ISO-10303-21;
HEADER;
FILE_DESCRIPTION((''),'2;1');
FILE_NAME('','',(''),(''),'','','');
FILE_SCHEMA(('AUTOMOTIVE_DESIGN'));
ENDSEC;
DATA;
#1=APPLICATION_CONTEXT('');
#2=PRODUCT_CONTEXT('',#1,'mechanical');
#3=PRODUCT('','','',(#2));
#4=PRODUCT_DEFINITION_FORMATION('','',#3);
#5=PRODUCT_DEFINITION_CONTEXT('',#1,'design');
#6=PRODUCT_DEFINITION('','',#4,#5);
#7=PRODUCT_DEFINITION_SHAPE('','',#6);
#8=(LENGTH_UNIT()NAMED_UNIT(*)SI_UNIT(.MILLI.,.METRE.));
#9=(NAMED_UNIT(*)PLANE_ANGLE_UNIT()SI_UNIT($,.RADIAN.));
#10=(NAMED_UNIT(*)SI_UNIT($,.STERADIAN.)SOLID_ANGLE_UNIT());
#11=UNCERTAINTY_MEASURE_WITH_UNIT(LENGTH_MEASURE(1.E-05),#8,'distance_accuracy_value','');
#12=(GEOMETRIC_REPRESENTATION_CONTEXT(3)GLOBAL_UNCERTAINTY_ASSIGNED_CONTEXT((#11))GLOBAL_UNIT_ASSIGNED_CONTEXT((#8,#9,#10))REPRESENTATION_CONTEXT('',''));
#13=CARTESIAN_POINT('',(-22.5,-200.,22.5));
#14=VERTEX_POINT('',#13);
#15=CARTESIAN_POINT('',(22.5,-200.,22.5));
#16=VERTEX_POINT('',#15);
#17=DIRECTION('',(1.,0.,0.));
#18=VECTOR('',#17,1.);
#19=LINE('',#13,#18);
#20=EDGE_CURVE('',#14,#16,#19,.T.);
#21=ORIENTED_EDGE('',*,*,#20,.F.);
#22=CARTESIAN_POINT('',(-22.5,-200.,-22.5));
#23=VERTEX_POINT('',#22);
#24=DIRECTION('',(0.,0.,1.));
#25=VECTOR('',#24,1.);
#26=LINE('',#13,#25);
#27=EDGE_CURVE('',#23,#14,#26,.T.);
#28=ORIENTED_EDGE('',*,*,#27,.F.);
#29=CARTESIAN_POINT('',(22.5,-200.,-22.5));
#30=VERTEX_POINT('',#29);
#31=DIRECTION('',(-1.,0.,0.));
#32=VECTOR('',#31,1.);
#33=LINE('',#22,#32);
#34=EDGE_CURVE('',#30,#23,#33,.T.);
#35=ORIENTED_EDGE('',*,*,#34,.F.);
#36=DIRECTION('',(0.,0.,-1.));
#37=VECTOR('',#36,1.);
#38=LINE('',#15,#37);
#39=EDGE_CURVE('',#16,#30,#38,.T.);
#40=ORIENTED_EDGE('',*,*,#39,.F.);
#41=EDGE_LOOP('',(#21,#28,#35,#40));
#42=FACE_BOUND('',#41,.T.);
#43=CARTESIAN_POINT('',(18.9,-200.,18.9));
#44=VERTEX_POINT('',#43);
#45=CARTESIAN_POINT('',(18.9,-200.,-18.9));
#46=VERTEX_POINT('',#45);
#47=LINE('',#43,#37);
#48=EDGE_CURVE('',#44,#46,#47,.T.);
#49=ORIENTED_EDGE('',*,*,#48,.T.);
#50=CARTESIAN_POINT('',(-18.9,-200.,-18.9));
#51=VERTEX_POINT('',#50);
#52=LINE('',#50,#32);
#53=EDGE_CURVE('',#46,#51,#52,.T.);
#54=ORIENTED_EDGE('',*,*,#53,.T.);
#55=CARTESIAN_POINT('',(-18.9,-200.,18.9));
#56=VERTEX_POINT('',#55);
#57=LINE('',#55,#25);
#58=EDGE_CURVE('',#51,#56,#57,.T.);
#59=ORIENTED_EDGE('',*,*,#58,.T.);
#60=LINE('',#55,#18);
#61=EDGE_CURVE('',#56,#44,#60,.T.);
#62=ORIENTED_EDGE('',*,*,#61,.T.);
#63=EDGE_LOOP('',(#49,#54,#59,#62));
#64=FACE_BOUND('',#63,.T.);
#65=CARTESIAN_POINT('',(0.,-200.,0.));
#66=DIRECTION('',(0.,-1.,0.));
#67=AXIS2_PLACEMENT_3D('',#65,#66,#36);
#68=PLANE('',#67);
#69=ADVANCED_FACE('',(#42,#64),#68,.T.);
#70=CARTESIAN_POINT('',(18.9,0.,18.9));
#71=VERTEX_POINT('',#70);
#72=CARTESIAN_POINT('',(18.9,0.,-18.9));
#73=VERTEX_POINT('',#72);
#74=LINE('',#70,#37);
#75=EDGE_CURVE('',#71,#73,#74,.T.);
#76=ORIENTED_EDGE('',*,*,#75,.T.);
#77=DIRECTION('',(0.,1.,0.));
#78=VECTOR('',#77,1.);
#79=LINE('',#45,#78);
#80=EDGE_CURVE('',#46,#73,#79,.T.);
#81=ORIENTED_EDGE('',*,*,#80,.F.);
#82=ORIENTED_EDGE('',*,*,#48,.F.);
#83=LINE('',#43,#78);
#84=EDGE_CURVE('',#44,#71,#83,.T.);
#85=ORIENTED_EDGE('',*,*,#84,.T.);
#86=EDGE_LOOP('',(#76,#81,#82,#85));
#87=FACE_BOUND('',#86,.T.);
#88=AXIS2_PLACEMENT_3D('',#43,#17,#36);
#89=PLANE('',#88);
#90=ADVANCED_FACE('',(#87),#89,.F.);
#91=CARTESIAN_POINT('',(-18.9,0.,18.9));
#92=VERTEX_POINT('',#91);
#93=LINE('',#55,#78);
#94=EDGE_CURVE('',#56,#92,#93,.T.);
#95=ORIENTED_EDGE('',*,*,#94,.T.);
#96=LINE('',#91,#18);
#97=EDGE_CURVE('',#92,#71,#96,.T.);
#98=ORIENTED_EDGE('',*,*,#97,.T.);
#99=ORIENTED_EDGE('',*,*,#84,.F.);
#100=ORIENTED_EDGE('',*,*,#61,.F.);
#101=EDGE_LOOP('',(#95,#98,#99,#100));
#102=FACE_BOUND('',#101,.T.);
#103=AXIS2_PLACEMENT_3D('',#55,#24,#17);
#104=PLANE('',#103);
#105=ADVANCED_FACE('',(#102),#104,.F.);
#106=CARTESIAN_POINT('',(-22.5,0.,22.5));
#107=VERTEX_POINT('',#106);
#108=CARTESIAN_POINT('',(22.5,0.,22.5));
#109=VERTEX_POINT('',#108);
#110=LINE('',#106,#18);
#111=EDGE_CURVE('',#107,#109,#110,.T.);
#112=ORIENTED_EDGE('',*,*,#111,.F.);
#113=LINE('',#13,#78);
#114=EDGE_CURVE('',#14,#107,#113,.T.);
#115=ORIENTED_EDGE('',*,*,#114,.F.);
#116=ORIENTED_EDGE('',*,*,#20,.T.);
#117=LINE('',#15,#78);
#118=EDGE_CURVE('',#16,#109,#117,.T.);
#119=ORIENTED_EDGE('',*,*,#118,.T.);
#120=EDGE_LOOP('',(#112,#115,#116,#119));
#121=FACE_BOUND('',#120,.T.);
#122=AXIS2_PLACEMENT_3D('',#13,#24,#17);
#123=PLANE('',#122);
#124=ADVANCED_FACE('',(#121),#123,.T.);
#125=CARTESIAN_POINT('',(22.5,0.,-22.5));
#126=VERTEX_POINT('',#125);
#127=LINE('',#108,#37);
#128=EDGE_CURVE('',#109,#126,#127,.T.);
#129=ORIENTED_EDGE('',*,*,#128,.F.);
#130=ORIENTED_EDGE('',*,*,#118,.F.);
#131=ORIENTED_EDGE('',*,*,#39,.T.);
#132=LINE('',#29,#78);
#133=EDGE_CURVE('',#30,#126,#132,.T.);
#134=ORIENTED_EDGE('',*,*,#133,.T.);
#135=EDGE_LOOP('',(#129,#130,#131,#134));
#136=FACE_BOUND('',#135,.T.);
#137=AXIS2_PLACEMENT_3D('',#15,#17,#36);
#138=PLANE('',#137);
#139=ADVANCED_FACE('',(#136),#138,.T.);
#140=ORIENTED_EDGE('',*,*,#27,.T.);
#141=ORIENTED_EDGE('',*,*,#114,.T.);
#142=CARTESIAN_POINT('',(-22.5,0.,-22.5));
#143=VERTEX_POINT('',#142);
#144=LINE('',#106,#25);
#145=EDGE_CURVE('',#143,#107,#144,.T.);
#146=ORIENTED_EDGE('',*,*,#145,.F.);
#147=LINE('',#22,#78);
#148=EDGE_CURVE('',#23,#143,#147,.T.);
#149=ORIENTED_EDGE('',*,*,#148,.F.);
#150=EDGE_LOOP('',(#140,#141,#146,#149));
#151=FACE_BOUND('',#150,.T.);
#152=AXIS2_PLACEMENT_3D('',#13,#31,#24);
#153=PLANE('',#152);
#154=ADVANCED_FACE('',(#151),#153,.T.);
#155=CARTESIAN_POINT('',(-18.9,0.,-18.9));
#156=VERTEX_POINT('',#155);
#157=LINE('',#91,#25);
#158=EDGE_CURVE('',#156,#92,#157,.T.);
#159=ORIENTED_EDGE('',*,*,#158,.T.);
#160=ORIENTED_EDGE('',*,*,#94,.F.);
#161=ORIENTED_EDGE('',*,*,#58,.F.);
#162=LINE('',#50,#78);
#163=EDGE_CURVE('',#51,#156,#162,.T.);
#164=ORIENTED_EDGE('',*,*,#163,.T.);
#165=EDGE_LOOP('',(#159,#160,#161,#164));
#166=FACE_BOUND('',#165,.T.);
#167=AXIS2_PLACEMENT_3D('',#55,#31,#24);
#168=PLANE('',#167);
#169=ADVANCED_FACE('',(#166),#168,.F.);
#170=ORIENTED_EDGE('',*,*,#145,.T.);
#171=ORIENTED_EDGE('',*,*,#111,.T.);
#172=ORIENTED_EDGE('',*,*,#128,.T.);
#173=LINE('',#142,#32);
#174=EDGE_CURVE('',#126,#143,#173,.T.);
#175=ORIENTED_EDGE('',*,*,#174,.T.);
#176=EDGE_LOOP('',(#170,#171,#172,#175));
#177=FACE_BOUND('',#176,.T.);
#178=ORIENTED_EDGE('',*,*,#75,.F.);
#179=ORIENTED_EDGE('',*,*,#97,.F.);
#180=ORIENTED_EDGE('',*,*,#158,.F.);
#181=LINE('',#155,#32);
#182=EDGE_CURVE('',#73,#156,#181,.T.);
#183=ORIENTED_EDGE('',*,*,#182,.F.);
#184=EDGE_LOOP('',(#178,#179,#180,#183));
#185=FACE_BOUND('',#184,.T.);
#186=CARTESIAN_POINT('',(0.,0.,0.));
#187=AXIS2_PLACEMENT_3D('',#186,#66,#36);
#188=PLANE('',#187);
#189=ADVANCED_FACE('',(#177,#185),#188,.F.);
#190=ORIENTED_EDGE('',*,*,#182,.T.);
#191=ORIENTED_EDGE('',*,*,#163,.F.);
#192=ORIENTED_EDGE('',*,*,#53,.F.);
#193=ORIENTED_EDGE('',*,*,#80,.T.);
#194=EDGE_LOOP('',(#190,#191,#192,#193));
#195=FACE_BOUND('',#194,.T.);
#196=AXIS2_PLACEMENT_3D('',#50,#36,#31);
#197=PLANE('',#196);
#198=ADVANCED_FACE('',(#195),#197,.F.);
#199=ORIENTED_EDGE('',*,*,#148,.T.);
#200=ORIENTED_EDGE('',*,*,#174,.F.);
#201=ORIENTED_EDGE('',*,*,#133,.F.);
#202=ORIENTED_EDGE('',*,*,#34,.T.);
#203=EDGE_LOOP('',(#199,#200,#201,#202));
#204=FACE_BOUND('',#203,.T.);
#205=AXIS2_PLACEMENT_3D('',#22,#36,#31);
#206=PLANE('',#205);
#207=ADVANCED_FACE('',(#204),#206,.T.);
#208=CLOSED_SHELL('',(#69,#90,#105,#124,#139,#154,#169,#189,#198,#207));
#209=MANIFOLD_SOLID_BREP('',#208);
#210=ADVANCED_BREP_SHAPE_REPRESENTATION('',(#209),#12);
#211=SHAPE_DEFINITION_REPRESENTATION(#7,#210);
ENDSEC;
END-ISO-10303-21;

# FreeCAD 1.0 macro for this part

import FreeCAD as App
import Part
import Sketcher
from FreeCAD import Vector
Q = App.Units.Quantity

doc = App.newDocument("Part")
body = doc.addObject("PartDesign::Body", "Body")

sketch1 = doc.addObject("Sketcher::SketchObject", "Sketch")
body.addObject(sketch1)
sketch1.AttachmentSupport = (doc.XZ_Plane, [""])
sketch1.MapMode = "FlatFace"
sketch1.addGeometry([
    Part.LineSegment(Vector(-22, -22, 0), Vector(-22, 22, 0)),
    Part.LineSegment(Vector(-22, 22, 0), Vector(22, 22, 0)),
    Part.LineSegment(Vector(22, 22, 0), Vector(22, -22, 0)),
    Part.LineSegment(Vector(22, -22, 0), Vector(-22, -22, 0)),
    Part.LineSegment(Vector(19, 19, 0), Vector(-19, 19, 0)),
    Part.LineSegment(Vector(-19, 19, 0), Vector(-19, -19, 0)),
    Part.LineSegment(Vector(-19, -19, 0), Vector(19, -19, 0)),
    Part.LineSegment(Vector(19, -19, 0), Vector(19, 19, 0)),
], False)
sketch1.addConstraint([
    Sketcher.Constraint("Coincident", 0, 2, 1, 1),
    Sketcher.Constraint("Coincident", 1, 2, 2, 1),
    Sketcher.Constraint("Coincident", 2, 2, 3, 1),
    Sketcher.Constraint("Coincident", 3, 2, 0, 1),
    Sketcher.Constraint("Coincident", 4, 2, 5, 1),
    Sketcher.Constraint("Coincident", 5, 2, 6, 1),
    Sketcher.Constraint("Coincident", 6, 2, 7, 1),
    Sketcher.Constraint("Coincident", 7, 2, 4, 1),
    Sketcher.Constraint("Vertical", 0),
    Sketcher.Constraint("Horizontal", 1),
    Sketcher.Constraint("Vertical", 2),
    Sketcher.Constraint("Horizontal", 3),
    Sketcher.Constraint("Horizontal", 4),
    Sketcher.Constraint("Vertical", 5),
    Sketcher.Constraint("Horizontal", 6),
    Sketcher.Constraint("Vertical", 7),
    Sketcher.Constraint("Symmetric", 0, 2, 2, 2, -1, 1),
    Sketcher.Constraint("Symmetric", 4, 2, 6, 2, -1, 1),
    Sketcher.Constraint("Equal", 3, 0),
    Sketcher.Constraint("Equal", 6, 5),
    Sketcher.Constraint("DistanceX", 1, 1, 1, 2, Q("45 mm")),
    Sketcher.Constraint("DistanceX", 4, 2, 4, 1, Q("37.8 mm")),
])
pad1 = doc.addObject("PartDesign::Pad", "Pad")
body.addObject(pad1)
pad1.Profile = sketch1
pad1.Length = 200

doc.recompute()
